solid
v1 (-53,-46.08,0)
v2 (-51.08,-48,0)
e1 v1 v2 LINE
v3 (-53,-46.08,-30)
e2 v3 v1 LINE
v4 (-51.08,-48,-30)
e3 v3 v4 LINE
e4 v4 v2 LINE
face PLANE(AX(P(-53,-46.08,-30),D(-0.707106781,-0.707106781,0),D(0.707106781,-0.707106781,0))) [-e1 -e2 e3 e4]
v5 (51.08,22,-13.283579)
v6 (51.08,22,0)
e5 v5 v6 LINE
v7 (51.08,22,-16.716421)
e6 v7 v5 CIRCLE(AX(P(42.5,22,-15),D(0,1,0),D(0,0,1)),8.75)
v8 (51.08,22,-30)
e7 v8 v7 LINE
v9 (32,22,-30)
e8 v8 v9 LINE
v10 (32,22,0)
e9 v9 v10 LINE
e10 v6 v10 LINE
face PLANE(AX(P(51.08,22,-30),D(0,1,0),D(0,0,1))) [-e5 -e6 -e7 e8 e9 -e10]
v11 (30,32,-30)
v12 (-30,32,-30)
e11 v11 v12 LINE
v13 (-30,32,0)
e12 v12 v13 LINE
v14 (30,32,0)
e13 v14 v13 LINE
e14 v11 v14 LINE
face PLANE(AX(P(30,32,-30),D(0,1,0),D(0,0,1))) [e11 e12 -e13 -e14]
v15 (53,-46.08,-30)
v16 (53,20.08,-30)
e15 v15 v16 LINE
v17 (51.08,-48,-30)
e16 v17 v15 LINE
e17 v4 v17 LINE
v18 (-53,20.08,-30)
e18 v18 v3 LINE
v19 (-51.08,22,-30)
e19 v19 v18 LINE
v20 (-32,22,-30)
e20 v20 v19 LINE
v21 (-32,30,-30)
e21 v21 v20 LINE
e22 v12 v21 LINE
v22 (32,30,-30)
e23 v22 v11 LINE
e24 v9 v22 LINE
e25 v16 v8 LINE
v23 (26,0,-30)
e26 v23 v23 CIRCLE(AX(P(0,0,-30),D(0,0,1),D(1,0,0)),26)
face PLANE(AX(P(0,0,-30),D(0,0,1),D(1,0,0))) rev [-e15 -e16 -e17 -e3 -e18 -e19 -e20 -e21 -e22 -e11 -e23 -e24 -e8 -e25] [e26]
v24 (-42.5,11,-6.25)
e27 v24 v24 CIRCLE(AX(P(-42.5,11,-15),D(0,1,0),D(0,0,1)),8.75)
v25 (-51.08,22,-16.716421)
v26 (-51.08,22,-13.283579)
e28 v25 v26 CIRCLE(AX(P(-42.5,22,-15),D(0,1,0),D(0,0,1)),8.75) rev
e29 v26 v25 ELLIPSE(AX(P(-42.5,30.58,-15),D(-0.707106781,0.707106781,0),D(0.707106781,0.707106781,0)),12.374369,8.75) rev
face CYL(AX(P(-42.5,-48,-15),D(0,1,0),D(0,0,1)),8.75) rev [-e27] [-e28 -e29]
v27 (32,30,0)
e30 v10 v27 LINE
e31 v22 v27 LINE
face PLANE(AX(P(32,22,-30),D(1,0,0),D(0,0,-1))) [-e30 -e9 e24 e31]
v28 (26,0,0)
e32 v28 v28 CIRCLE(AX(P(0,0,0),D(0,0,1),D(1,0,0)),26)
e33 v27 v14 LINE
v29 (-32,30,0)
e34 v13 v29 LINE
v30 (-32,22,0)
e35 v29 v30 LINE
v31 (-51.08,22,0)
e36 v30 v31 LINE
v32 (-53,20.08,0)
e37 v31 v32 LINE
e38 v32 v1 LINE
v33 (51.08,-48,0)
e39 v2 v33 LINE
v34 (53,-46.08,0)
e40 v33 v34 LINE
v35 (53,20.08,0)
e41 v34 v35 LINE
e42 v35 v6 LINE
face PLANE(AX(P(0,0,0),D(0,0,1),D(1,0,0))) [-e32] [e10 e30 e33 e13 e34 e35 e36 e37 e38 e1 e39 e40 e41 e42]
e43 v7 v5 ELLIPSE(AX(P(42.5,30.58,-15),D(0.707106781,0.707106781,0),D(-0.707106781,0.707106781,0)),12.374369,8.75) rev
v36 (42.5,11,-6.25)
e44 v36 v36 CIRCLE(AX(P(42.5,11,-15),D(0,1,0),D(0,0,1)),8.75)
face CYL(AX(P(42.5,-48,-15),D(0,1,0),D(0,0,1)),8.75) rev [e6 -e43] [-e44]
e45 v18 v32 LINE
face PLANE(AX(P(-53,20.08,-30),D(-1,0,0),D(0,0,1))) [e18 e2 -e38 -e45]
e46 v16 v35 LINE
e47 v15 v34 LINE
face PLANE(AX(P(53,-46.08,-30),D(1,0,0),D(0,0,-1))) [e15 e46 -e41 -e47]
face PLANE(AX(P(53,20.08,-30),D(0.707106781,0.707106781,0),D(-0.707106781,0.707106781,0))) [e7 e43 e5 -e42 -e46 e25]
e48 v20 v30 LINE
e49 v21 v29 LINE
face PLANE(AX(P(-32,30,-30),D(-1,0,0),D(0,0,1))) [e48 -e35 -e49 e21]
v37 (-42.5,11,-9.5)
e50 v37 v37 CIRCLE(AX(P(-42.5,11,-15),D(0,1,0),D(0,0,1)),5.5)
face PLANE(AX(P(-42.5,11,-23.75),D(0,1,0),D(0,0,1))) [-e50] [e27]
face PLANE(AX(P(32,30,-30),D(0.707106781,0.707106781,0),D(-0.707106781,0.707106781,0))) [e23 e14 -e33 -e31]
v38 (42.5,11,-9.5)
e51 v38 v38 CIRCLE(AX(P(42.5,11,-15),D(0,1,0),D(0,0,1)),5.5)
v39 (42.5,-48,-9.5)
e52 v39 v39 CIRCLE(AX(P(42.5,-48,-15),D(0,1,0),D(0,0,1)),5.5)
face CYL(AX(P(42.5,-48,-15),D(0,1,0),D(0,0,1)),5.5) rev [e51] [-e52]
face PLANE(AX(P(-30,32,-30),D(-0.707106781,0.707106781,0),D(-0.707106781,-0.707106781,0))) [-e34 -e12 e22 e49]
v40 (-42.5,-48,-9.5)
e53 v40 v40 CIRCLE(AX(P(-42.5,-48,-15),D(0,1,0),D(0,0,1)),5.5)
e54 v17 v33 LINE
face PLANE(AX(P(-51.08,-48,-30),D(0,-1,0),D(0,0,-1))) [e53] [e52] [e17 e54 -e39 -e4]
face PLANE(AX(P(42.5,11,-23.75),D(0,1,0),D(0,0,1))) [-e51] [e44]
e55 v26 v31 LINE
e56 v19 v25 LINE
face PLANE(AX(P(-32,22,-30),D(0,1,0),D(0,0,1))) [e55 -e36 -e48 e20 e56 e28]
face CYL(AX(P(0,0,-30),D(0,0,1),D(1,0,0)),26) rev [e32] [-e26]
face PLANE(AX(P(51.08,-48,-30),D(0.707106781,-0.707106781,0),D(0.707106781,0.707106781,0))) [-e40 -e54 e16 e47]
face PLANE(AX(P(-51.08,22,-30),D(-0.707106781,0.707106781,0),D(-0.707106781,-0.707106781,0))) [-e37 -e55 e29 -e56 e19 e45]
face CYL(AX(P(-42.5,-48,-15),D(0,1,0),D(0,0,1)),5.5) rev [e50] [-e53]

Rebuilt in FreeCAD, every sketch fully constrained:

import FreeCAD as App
import Part
import Sketcher
from FreeCAD import Vector

doc = App.newDocument("Part")
body = doc.addObject("PartDesign::Body", "Body")

# Sketch on XY plane
sketch1 = body.newObject("Sketcher::SketchObject", "Sketch")
sketch1.AttachmentSupport = (doc.getObject("XY_Plane"), [""])
sketch1.MapMode = "FlatFace"
sketch1.addGeometry([
    Part.LineSegment(Vector(-53, -46.08, 0), Vector(-51.08, -48, 0)),  # 0
    Part.LineSegment(Vector(-51.08, -48, 0), Vector(51.08, -48, 0)),  # 1
    Part.LineSegment(Vector(51.08, -48, 0), Vector(53, -46.08, 0)),  # 2
    Part.LineSegment(Vector(53, -46.08, 0), Vector(53, 20.08, 0)),  # 3
    Part.LineSegment(Vector(53, 20.08, 0), Vector(51.08, 22, 0)),  # 4
    Part.LineSegment(Vector(51.08, 22, 0), Vector(32, 22, 0)),  # 5
    Part.LineSegment(Vector(32, 22, 0), Vector(32, 30, 0)),  # 6
    Part.LineSegment(Vector(32, 30, 0), Vector(30, 32, 0)),  # 7
    Part.LineSegment(Vector(30, 32, 0), Vector(-30, 32, 0)),  # 8
    Part.LineSegment(Vector(-30, 32, 0), Vector(-32, 30, 0)),  # 9
    Part.LineSegment(Vector(-32, 30, 0), Vector(-32, 22, 0)),  # 10
    Part.LineSegment(Vector(-32, 22, 0), Vector(-51.08, 22, 0)),  # 11
    Part.LineSegment(Vector(-51.08, 22, 0), Vector(-53, 20.08, 0)),  # 12
    Part.LineSegment(Vector(-53, 20.08, 0), Vector(-53, -46.08, 0)),  # 13
], False)
sketch1.addConstraint([
    Sketcher.Constraint("Coincident", 0, 2, 1, 1),
    Sketcher.Constraint("Coincident", 1, 2, 2, 1),
    Sketcher.Constraint("Coincident", 2, 2, 3, 1),
    Sketcher.Constraint("Coincident", 3, 2, 4, 1),
    Sketcher.Constraint("Coincident", 4, 2, 5, 1),
    Sketcher.Constraint("Coincident", 5, 2, 6, 1),
    Sketcher.Constraint("Coincident", 6, 2, 7, 1),
    Sketcher.Constraint("Coincident", 7, 2, 8, 1),
    Sketcher.Constraint("Coincident", 8, 2, 9, 1),
    Sketcher.Constraint("Coincident", 9, 2, 10, 1),
    Sketcher.Constraint("Coincident", 10, 2, 11, 1),
    Sketcher.Constraint("Coincident", 11, 2, 12, 1),
    Sketcher.Constraint("Coincident", 12, 2, 13, 1),
    Sketcher.Constraint("Coincident", 13, 2, 0, 1),
    Sketcher.Constraint("Horizontal", 1),
    Sketcher.Constraint("Vertical", 3),
    Sketcher.Constraint("Horizontal", 5),
    Sketcher.Constraint("Vertical", 6),
    Sketcher.Constraint("Horizontal", 8),
    Sketcher.Constraint("Vertical", 10),
    Sketcher.Constraint("Horizontal", 11),
    Sketcher.Constraint("Vertical", 13),
    Sketcher.Constraint("Symmetric", 6, 2, 9, 2, -2),
    Sketcher.Constraint("Symmetric", 4, 2, 11, 2, -2),
    Sketcher.Constraint("Symmetric", 3, 2, 12, 2, -2),
    Sketcher.Constraint("Perpendicular", 0, 2),
    Sketcher.Constraint("Perpendicular", 2, 4),
    Sketcher.Constraint("Parallel", 4, 7),
    Sketcher.Constraint("Perpendicular", 7, 9),
    Sketcher.Constraint("Parallel", 9, 12),
    Sketcher.Constraint("Horizontal", 2, 2, 13, 2),
    Sketcher.Constraint("Vertical", 1, 2, 4, 2),
    Sketcher.Constraint("DistanceX", 8, 2, 8, 1, 60.0),
    Sketcher.Constraint("DistanceY", 6, 1, 6, 2, 8.0),
    Sketcher.Constraint("DistanceY", 0, 2, -1, 1, 48.0),
    Sketcher.Constraint("DistanceX", -1, 1, 2, 2, 53.0),
    Sketcher.Constraint("DistanceY", -1, 1, 4, 2, 22.0),
    Sketcher.Constraint("DistanceX", -1, 1, 5, 2, 32.0),
    Sketcher.Constraint("DistanceX", 1, 1, 1, 2, 102.16),
])
pad1 = body.newObject("PartDesign::Pad", "Pad")
pad1.Profile = sketch1
pad1.Length = 30
pad1.Reversed = True

# Sketch on YZ plane
sketch2 = body.newObject("Sketcher::SketchObject", "Sketch001")
sketch2.AttachmentSupport = (doc.getObject("YZ_Plane"), [""])
sketch2.MapMode = "FlatFace"
sketch2.AttachmentOffset = App.Placement(Vector(0, 0, 42.5), App.Rotation())
sketch2.addGeometry([
    Part.LineSegment(Vector(22, -23.75, 0), Vector(22, -15, 0)),  # 0
    Part.LineSegment(Vector(22, -15, 0), Vector(-48, -15, 0)),  # 1
    Part.LineSegment(Vector(-48, -15, 0), Vector(-48, -20.5, 0)),  # 2
    Part.LineSegment(Vector(-48, -20.5, 0), Vector(11, -20.5, 0)),  # 3
    Part.LineSegment(Vector(11, -20.5, 0), Vector(11, -23.75, 0)),  # 4
    Part.LineSegment(Vector(11, -23.75, 0), Vector(22, -23.75, 0)),  # 5
], False)
sketch2.addGeometry(Part.LineSegment(Vector(-48, -15, 0), Vector(22, -15, 0)), True)  # axis
sketch2.addConstraint([
    Sketcher.Constraint("Coincident", 0, 2, 1, 1),
    Sketcher.Constraint("Coincident", 1, 2, 2, 1),
    Sketcher.Constraint("Coincident", 2, 2, 3, 1),
    Sketcher.Constraint("Coincident", 3, 2, 4, 1),
    Sketcher.Constraint("Coincident", 4, 2, 5, 1),
    Sketcher.Constraint("Coincident", 5, 2, 0, 1),
    Sketcher.Constraint("Vertical", 0),
    Sketcher.Constraint("Horizontal", 1),
    Sketcher.Constraint("Vertical", 2),
    Sketcher.Constraint("Horizontal", 3),
    Sketcher.Constraint("Vertical", 4),
    Sketcher.Constraint("Horizontal", 5),
    Sketcher.Constraint("Horizontal", 6),
    Sketcher.Constraint("Coincident", 6, 1, 1, 2),
    Sketcher.Constraint("Vertical", 5, 2, 6, 2),
    Sketcher.Constraint("DistanceX", 1, 2, 1, 1, 70.0),
    Sketcher.Constraint("DistanceX", 3, 1, 3, 2, 59.0),
    Sketcher.Constraint("DistanceY", 2, 2, 2, 1, 5.5),
    Sketcher.Constraint("DistanceX", -1, 1, 0, 2, 22.0),
    Sketcher.Constraint("DistanceY", 0, 2, -1, 1, 15.0),
    Sketcher.Constraint("DistanceY", 0, 1, 0, 2, 8.75),
])
groove = body.newObject("PartDesign::Groove", "Groove")
groove.Profile = sketch2
groove.ReferenceAxis = (sketch2, ["Axis0"])
groove.Angle = 360

# Sketch on YZ plane
sketch3 = body.newObject("Sketcher::SketchObject", "Sketch002")
sketch3.AttachmentSupport = (doc.getObject("YZ_Plane"), [""])
sketch3.MapMode = "FlatFace"
sketch3.AttachmentOffset = App.Placement(Vector(0, 0, -42.5), App.Rotation())
sketch3.addGeometry([
    Part.LineSegment(Vector(22, -23.75, 0), Vector(22, -15, 0)),  # 0
    Part.LineSegment(Vector(22, -15, 0), Vector(-48, -15, 0)),  # 1
    Part.LineSegment(Vector(-48, -15, 0), Vector(-48, -20.5, 0)),  # 2
    Part.LineSegment(Vector(-48, -20.5, 0), Vector(11, -20.5, 0)),  # 3
    Part.LineSegment(Vector(11, -20.5, 0), Vector(11, -23.75, 0)),  # 4
    Part.LineSegment(Vector(11, -23.75, 0), Vector(22, -23.75, 0)),  # 5
], False)
sketch3.addGeometry(Part.LineSegment(Vector(-48, -15, 0), Vector(22, -15, 0)), True)  # axis
sketch3.addConstraint([
    Sketcher.Constraint("Coincident", 0, 2, 1, 1),
    Sketcher.Constraint("Coincident", 1, 2, 2, 1),
    Sketcher.Constraint("Coincident", 2, 2, 3, 1),
    Sketcher.Constraint("Coincident", 3, 2, 4, 1),
    Sketcher.Constraint("Coincident", 4, 2, 5, 1),
    Sketcher.Constraint("Coincident", 5, 2, 0, 1),
    Sketcher.Constraint("Vertical", 0),
    Sketcher.Constraint("Horizontal", 1),
    Sketcher.Constraint("Vertical", 2),
    Sketcher.Constraint("Horizontal", 3),
    Sketcher.Constraint("Vertical", 4),
    Sketcher.Constraint("Horizontal", 5),
    Sketcher.Constraint("Horizontal", 6),
    Sketcher.Constraint("Coincident", 6, 1, 1, 2),
    Sketcher.Constraint("Vertical", 5, 2, 6, 2),
    Sketcher.Constraint("DistanceX", 1, 2, 1, 1, 70.0),
    Sketcher.Constraint("DistanceX", 3, 1, 3, 2, 59.0),
    Sketcher.Constraint("DistanceY", 2, 2, 2, 1, 5.5),
    Sketcher.Constraint("DistanceX", -1, 1, 0, 2, 22.0),
    Sketcher.Constraint("DistanceY", 0, 2, -1, 1, 15.0),
    Sketcher.Constraint("DistanceY", 0, 1, 0, 2, 8.75),
])
groove2 = body.newObject("PartDesign::Groove", "Groove001")
groove2.Profile = sketch3
groove2.ReferenceAxis = (sketch3, ["Axis0"])
groove2.Angle = 360

# Sketch on XY plane
sketch4 = body.newObject("Sketcher::SketchObject", "Sketch003")
sketch4.AttachmentSupport = (doc.getObject("XY_Plane"), [""])
sketch4.MapMode = "FlatFace"
sketch4.addGeometry(Part.Circle(Vector(0, 0, 0), Vector(0, 0, 1), 26), False)
sketch4.addConstraint([
    Sketcher.Constraint("Coincident", 0, 3, -1, 1),
    Sketcher.Constraint("Diameter", 0, 52.0),
])
pocket1 = body.newObject("PartDesign::Pocket", "Pocket")
pocket1.Profile = sketch4
pocket1.Length = 30

doc.recompute()
